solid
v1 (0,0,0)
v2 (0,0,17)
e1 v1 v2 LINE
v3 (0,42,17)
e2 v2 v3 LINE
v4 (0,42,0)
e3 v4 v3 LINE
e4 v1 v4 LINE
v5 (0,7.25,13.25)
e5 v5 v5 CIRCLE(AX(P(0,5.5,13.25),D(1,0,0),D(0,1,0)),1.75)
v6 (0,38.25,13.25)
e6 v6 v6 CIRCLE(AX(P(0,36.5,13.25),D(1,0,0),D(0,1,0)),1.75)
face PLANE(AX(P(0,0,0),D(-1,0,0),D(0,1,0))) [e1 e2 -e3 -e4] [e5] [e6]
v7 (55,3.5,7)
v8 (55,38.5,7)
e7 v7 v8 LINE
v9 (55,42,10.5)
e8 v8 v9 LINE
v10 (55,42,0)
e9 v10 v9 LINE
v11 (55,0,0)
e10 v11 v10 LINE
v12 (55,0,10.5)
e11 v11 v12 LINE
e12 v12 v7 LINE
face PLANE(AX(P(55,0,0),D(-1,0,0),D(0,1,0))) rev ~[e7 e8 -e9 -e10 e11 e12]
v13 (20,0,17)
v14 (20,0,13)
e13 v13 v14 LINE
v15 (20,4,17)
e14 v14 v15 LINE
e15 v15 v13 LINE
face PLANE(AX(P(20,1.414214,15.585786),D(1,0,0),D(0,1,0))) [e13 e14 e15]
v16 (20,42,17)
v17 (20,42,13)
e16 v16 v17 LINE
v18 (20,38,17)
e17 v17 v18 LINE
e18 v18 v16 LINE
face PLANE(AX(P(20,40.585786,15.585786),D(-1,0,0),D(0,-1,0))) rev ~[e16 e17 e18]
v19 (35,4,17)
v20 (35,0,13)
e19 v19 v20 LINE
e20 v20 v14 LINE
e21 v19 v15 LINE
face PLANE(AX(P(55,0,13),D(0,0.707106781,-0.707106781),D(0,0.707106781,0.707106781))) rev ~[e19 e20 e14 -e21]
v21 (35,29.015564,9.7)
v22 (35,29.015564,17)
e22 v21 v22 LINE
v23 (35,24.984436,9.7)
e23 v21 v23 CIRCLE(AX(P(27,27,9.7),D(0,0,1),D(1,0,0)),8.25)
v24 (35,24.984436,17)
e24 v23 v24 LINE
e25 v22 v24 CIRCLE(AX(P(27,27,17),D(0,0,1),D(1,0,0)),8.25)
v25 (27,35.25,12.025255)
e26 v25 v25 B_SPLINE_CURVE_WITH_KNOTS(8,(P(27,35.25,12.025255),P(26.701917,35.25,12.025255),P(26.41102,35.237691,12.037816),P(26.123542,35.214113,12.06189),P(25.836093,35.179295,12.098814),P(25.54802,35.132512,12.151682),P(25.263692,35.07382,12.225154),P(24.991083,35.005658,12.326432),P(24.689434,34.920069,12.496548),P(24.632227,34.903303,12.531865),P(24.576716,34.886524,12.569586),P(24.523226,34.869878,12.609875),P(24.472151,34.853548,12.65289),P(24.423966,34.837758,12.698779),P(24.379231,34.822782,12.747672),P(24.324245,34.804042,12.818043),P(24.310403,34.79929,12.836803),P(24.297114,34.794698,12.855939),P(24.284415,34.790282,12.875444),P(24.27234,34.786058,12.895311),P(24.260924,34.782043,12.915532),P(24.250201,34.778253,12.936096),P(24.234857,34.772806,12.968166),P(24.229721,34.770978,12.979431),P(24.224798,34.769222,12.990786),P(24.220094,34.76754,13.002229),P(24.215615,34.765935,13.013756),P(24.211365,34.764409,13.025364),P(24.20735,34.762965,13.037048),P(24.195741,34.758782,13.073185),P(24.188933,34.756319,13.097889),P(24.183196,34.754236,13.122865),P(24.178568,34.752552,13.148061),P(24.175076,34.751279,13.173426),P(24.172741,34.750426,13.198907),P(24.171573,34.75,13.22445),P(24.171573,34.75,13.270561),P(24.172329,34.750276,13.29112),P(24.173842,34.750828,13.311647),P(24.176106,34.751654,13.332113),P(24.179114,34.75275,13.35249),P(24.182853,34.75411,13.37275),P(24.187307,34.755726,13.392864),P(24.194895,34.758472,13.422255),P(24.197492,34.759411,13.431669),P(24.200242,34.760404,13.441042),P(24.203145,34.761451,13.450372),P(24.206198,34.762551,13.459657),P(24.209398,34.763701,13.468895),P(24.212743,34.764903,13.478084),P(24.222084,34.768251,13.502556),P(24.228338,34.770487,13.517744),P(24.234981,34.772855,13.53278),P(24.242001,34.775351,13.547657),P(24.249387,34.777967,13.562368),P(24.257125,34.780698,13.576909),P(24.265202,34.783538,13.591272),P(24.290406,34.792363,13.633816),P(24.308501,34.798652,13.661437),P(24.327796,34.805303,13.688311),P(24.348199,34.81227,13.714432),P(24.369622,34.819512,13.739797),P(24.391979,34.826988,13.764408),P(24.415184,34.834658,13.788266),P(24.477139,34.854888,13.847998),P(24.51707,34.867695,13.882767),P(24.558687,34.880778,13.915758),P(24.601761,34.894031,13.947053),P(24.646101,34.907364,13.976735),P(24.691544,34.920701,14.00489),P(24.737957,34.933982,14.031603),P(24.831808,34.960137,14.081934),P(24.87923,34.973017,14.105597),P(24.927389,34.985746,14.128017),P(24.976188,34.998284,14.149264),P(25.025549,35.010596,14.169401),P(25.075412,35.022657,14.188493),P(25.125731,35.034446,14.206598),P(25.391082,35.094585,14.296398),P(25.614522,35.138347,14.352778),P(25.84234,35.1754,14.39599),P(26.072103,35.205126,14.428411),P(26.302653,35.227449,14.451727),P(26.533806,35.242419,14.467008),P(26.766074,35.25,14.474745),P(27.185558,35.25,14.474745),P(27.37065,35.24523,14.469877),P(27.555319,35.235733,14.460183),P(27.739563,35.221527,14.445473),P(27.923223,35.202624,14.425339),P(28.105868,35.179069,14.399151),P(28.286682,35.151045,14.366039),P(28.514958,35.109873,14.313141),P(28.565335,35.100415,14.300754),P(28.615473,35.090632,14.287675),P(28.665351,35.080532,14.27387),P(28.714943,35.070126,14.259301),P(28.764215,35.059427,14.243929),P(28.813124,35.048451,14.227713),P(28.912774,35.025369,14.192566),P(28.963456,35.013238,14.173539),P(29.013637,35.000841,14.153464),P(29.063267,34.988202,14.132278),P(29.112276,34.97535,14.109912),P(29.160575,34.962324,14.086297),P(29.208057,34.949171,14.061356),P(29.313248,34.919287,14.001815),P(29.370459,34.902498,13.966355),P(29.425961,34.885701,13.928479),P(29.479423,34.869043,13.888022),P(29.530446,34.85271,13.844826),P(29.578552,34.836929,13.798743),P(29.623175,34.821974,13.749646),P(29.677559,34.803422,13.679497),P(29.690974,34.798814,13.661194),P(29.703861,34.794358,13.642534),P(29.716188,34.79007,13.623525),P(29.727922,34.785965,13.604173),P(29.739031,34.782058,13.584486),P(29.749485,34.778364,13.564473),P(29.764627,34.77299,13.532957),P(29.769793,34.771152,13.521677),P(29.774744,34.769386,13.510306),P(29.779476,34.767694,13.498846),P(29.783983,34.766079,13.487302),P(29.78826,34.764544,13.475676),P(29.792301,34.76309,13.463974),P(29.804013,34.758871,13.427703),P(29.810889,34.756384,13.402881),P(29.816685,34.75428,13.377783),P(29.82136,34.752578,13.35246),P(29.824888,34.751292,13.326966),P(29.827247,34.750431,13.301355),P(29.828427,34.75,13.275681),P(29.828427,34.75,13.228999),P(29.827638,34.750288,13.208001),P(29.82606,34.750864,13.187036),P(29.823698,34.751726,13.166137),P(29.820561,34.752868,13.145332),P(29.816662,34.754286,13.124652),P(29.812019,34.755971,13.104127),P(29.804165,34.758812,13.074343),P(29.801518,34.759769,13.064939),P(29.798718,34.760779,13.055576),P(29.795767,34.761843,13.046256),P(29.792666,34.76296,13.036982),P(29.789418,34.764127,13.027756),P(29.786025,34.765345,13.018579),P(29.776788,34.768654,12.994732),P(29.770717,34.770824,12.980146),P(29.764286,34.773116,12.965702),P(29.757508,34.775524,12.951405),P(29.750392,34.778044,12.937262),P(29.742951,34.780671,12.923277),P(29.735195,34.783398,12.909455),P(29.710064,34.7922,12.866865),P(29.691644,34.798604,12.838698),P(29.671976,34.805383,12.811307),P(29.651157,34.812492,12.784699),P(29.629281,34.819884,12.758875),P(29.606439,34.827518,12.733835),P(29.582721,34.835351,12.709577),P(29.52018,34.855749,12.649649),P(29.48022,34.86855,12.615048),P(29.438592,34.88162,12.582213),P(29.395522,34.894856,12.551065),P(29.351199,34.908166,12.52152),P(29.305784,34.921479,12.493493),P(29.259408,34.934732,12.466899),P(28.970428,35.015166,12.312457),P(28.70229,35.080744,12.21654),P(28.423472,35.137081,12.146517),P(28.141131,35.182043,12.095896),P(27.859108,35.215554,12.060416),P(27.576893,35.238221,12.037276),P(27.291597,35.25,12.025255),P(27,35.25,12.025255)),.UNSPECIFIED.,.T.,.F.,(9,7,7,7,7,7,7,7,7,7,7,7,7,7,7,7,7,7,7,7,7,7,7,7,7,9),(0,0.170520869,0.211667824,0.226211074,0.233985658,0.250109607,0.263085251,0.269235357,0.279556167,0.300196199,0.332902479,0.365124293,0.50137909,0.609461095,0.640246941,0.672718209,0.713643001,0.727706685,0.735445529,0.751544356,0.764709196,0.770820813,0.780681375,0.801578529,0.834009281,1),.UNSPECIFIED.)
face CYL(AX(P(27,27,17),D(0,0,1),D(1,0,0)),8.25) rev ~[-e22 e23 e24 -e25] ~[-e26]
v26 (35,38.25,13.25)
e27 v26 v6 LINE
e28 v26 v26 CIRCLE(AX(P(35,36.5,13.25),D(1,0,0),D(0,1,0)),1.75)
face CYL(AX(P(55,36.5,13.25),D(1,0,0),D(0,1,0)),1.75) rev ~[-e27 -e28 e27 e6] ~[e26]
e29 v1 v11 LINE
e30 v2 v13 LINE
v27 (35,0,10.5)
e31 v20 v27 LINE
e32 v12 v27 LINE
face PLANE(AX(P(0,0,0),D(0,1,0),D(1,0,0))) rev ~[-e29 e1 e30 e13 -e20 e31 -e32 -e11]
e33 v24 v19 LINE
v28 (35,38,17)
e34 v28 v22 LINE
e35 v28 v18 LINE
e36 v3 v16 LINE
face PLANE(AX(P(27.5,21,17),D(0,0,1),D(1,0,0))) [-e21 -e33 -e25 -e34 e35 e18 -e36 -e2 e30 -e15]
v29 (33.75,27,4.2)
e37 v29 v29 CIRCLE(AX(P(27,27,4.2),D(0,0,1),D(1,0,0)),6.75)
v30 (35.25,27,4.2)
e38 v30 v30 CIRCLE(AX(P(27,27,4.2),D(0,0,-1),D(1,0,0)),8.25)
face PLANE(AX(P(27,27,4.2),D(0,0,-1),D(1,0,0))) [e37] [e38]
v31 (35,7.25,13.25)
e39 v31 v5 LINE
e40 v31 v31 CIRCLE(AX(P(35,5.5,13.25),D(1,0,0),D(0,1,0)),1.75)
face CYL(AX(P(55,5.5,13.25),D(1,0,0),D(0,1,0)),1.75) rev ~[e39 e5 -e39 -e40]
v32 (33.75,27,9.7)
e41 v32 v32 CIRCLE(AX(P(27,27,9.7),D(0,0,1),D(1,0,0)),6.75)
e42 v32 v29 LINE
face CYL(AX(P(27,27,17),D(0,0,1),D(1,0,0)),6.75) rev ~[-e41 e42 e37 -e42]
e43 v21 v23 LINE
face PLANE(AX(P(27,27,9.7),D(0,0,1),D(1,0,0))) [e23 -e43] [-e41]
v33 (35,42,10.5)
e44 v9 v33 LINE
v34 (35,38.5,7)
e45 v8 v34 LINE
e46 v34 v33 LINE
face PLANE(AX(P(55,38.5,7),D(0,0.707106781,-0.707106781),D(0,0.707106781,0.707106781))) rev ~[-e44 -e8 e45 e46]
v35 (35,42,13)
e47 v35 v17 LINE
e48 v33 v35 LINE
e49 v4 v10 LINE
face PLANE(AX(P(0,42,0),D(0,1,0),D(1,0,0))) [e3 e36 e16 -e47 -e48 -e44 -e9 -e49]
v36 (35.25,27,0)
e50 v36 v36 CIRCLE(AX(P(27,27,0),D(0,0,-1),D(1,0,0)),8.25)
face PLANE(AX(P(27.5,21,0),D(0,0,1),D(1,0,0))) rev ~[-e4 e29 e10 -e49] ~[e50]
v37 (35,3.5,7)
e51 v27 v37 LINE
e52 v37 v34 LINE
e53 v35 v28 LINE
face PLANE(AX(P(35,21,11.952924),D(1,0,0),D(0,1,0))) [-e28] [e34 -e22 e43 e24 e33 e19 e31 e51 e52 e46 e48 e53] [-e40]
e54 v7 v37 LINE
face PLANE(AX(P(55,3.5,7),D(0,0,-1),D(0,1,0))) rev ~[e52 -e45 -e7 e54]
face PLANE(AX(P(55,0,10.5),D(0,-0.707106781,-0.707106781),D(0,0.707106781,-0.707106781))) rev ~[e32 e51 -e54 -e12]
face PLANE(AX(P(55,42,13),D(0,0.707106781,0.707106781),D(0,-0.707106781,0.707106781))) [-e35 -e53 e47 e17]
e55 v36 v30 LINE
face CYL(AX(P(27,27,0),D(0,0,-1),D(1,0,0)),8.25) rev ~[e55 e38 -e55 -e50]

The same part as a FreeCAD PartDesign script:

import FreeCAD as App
import Part
import Sketcher

V = App.Vector


def add_polygon(sketch, points):
    """Adds a closed chain of lines whose ends are joined by coincident constraints."""
    first, n = sketch.GeometryCount, len(points)
    for a, b in zip(points, points[1:] + points[:1]):
        sketch.addGeometry(Part.LineSegment(App.Vector(*a, 0), App.Vector(*b, 0)), False)
    for i in range(n):
        sketch.addConstraint(Sketcher.Constraint("Coincident", first + i, 2, first + (i + 1) % n, 1))

doc = App.newDocument("Part")
params = doc.addObject("Spreadsheet::Sheet", "Params")
for row, (alias, value) in enumerate([
    ("sketch1_width", "55 mm"),
    ("sketch1_height", "42 mm"),
    ("pad1_length", "17 mm"),
    ("sketch2_diameter", "3.5 mm"),
    ("sketch3_width", "4 mm"),
    ("pocket2_length", "35 mm"),
    ("sketch4_width", "35 mm"),
    ("sketch4_width2", "34 mm"),
    ("sketch4_height", "2.5 mm"),
    ("pocket3_length", "20 mm"),
    ("sketch5_diameter", "13.5 mm"),
    ("sketch6_diameter", "16.5 mm"),
    ("pocket5_length", "7.3 mm"),
    ("sketch7_diameter", "16.5 mm"),
    ("pocket6_length", "4.2 mm"),
], start=1):
    params.set(f"A{row}", alias)
    params.set(f"B{row}", "=" + value)
    params.setAlias(f"B{row}", alias)

body = doc.addObject("PartDesign::Body", "Body")

# Sketch on XY plane
sketch1 = body.newObject("Sketcher::SketchObject", "Sketch")
sketch1.AttachmentSupport = (doc.getObject("XY_Plane"), [""])
sketch1.MapMode = "FlatFace"
add_polygon(sketch1, [(0, 42), (0, 0), (55, 0), (55, 42)])  # lines 0-3
sketch1.addConstraint(Sketcher.Constraint("Vertical", 0))
sketch1.addConstraint(Sketcher.Constraint("Horizontal", 1))
sketch1.addConstraint(Sketcher.Constraint("Vertical", 2))
sketch1.addConstraint(Sketcher.Constraint("Horizontal", 3))
sketch1.addConstraint(Sketcher.Constraint("Coincident", 0, 2, -1, 1))
sketch1.addConstraint(Sketcher.Constraint("DistanceX", 1, 1, 1, 2, 55.0))
sketch1.addConstraint(Sketcher.Constraint("DistanceY", 0, 2, 0, 1, 42.0))
sketch1.setExpression("Constraints[9]", "Params.sketch1_width")
sketch1.setExpression("Constraints[10]", "Params.sketch1_height")
pad1 = body.newObject("PartDesign::Pad", "Pad")
pad1.Profile = sketch1
pad1.setExpression("Length", "Params.pad1_length")

# Sketch on YZ plane
sketch2 = body.newObject("Sketcher::SketchObject", "Sketch001")
sketch2.AttachmentSupport = (doc.getObject("YZ_Plane"), [""])
sketch2.MapMode = "FlatFace"
sketch2.AttachmentOffset = App.Placement(V(0, 0, 55), App.Rotation())
sketch2.addGeometry(Part.Circle(V(5.5, 13.25, 0), V(0, 0, 1), 1.75), False)
sketch2.addGeometry(Part.Circle(V(36.5, 13.25, 0), V(0, 0, 1), 1.75), False)
sketch2.addConstraint(Sketcher.Constraint("Equal", 0, 1))
sketch2.addConstraint(Sketcher.Constraint("Horizontal", 0, 3, 1, 3))
sketch2.addConstraint(Sketcher.Constraint("Diameter", 0, 3.5))
sketch2.addConstraint(Sketcher.Constraint("DistanceX", 0, 3, 1, 3, 31.0))
sketch2.addConstraint(Sketcher.Constraint("DistanceX", -1, 1, 0, 3, 5.5))
sketch2.addConstraint(Sketcher.Constraint("DistanceY", -1, 1, 0, 3, 13.25))
sketch2.setExpression("Constraints[2]", "Params.sketch2_diameter")
pocket1 = body.newObject("PartDesign::Pocket", "Pocket")
pocket1.Profile = sketch2
pocket1.Type = "ThroughAll"

# Sketch on YZ plane
sketch3 = body.newObject("Sketcher::SketchObject", "Sketch002")
sketch3.AttachmentSupport = (doc.getObject("YZ_Plane"), [""])
sketch3.MapMode = "FlatFace"
sketch3.AttachmentOffset = App.Placement(V(0, 0, 55), App.Rotation())
add_polygon(sketch3, [(4, 17), (0, 17), (0, 13)])  # lines 0-2
add_polygon(sketch3, [(42, 17), (38, 17), (42, 13)])  # lines 3-5
sketch3.addConstraint(Sketcher.Constraint("Horizontal", 0))
sketch3.addConstraint(Sketcher.Constraint("Vertical", 1))
sketch3.addConstraint(Sketcher.Constraint("Horizontal", 3))
sketch3.addConstraint(Sketcher.Constraint("Vertical", 5))
sketch3.addConstraint(Sketcher.Constraint("PointOnObject", 0, 2, -2))
sketch3.addConstraint(Sketcher.Constraint("Perpendicular", 2, 4))
sketch3.addConstraint(Sketcher.Constraint("Horizontal", 2, 2, 3, 2))
sketch3.addConstraint(Sketcher.Constraint("Horizontal", 1, 2, 4, 2))
sketch3.addConstraint(Sketcher.Constraint("Equal", 0, 3))
sketch3.addConstraint(Sketcher.Constraint("DistanceX", 0, 2, 0, 1, 4.0))
sketch3.addConstraint(Sketcher.Constraint("DistanceY", -1, 1, 0, 2, 17.0))
sketch3.addConstraint(Sketcher.Constraint("DistanceX", -1, 1, 3, 2, 38.0))
sketch3.setExpression("Constraints[15]", "Params.sketch3_width")
pocket2 = body.newObject("PartDesign::Pocket", "Pocket001")
pocket2.Profile = sketch3
pocket2.setExpression("Length", "Params.pocket2_length")

# Sketch on YZ plane
sketch4 = body.newObject("Sketcher::SketchObject", "Sketch003")
sketch4.AttachmentSupport = (doc.getObject("YZ_Plane"), [""])
sketch4.MapMode = "FlatFace"
sketch4.AttachmentOffset = App.Placement(V(0, 0, 55), App.Rotation())
add_polygon(sketch4, [(4, 17), (0, 13), (0, 10.5), (3.5, 7), (38.5, 7), (42, 10.5), (42, 13), (38, 17)])  # lines 0-7
sketch4.addConstraint(Sketcher.Constraint("Vertical", 1))
sketch4.addConstraint(Sketcher.Constraint("Horizontal", 3))
sketch4.addConstraint(Sketcher.Constraint("Vertical", 5))
sketch4.addConstraint(Sketcher.Constraint("Horizontal", 7))
sketch4.addConstraint(Sketcher.Constraint("PointOnObject", 0, 2, -2))
sketch4.addConstraint(Sketcher.Constraint("Perpendicular", 0, 2))
sketch4.addConstraint(Sketcher.Constraint("Perpendicular", 2, 4))
sketch4.addConstraint(Sketcher.Constraint("Perpendicular", 4, 6))
sketch4.addConstraint(Sketcher.Constraint("Horizontal", 1, 2, 4, 2))
sketch4.addConstraint(Sketcher.Constraint("Horizontal", 0, 2, 5, 2))
sketch4.addConstraint(Sketcher.Constraint("Equal", 2, 4))
sketch4.addConstraint(Sketcher.Constraint("DistanceX", 3, 1, 3, 2, 35.0))
sketch4.addConstraint(Sketcher.Constraint("DistanceX", 7, 2, 7, 1, 34.0))
sketch4.addConstraint(Sketcher.Constraint("DistanceY", 1, 2, 1, 1, 2.5))
sketch4.addConstraint(Sketcher.Constraint("DistanceY", -1, 1, 0, 2, 13.0))
sketch4.addConstraint(Sketcher.Constraint("DistanceY", -1, 1, 2, 2, 7.0))
sketch4.setExpression("Constraints[19]", "Params.sketch4_width")
sketch4.setExpression("Constraints[20]", "Params.sketch4_width2")
sketch4.setExpression("Constraints[21]", "Params.sketch4_height")
pocket3 = body.newObject("PartDesign::Pocket", "Pocket002")
pocket3.Profile = sketch4
pocket3.setExpression("Length", "Params.pocket3_length")

# Sketch on XY plane
sketch5 = body.newObject("Sketcher::SketchObject", "Sketch004")
sketch5.AttachmentSupport = (doc.getObject("XY_Plane"), [""])
sketch5.MapMode = "FlatFace"
sketch5.AttachmentOffset = App.Placement(V(0, 0, 17), App.Rotation())
sketch5.addGeometry(Part.Circle(V(27, 27, 0), V(0, 0, 1), 6.75), False)
sketch5.addConstraint(Sketcher.Constraint("Diameter", 0, 13.5))
sketch5.addConstraint(Sketcher.Constraint("DistanceX", -1, 1, 0, 3, 27.0))
sketch5.addConstraint(Sketcher.Constraint("DistanceY", -1, 1, 0, 3, 27.0))
sketch5.setExpression("Constraints[0]", "Params.sketch5_diameter")
pocket4 = body.newObject("PartDesign::Pocket", "Pocket003")
pocket4.Profile = sketch5
pocket4.Type = "ThroughAll"

# Sketch on XY plane
sketch6 = body.newObject("Sketcher::SketchObject", "Sketch005")
sketch6.AttachmentSupport = (doc.getObject("XY_Plane"), [""])
sketch6.MapMode = "FlatFace"
sketch6.AttachmentOffset = App.Placement(V(0, 0, 17), App.Rotation())
sketch6.addGeometry(Part.Circle(V(27, 27, 0), V(0, 0, 1), 8.25), False)
sketch6.addConstraint(Sketcher.Constraint("Diameter", 0, 16.5))
sketch6.addConstraint(Sketcher.Constraint("DistanceX", -1, 1, 0, 3, 27.0))
sketch6.addConstraint(Sketcher.Constraint("DistanceY", -1, 1, 0, 3, 27.0))
sketch6.setExpression("Constraints[0]", "Params.sketch6_diameter")
pocket5 = body.newObject("PartDesign::Pocket", "Pocket004")
pocket5.Profile = sketch6
pocket5.setExpression("Length", "Params.pocket5_length")

# Sketch on XY plane
sketch7 = body.newObject("Sketcher::SketchObject", "Sketch006")
sketch7.AttachmentSupport = (doc.getObject("XY_Plane"), [""])
sketch7.MapMode = "FlatFace"
sketch7.addGeometry(Part.Circle(V(27, 27, 0), V(0, 0, 1), 8.25), False)
sketch7.addConstraint(Sketcher.Constraint("Diameter", 0, 16.5))
sketch7.addConstraint(Sketcher.Constraint("DistanceX", -1, 1, 0, 3, 27.0))
sketch7.addConstraint(Sketcher.Constraint("DistanceY", -1, 1, 0, 3, 27.0))
sketch7.setExpression("Constraints[0]", "Params.sketch7_diameter")
pocket6 = body.newObject("PartDesign::Pocket", "Pocket005")
pocket6.Profile = sketch7
pocket6.setExpression("Length", "Params.pocket6_length")
pocket6.Reversed = True

doc.recompute()
